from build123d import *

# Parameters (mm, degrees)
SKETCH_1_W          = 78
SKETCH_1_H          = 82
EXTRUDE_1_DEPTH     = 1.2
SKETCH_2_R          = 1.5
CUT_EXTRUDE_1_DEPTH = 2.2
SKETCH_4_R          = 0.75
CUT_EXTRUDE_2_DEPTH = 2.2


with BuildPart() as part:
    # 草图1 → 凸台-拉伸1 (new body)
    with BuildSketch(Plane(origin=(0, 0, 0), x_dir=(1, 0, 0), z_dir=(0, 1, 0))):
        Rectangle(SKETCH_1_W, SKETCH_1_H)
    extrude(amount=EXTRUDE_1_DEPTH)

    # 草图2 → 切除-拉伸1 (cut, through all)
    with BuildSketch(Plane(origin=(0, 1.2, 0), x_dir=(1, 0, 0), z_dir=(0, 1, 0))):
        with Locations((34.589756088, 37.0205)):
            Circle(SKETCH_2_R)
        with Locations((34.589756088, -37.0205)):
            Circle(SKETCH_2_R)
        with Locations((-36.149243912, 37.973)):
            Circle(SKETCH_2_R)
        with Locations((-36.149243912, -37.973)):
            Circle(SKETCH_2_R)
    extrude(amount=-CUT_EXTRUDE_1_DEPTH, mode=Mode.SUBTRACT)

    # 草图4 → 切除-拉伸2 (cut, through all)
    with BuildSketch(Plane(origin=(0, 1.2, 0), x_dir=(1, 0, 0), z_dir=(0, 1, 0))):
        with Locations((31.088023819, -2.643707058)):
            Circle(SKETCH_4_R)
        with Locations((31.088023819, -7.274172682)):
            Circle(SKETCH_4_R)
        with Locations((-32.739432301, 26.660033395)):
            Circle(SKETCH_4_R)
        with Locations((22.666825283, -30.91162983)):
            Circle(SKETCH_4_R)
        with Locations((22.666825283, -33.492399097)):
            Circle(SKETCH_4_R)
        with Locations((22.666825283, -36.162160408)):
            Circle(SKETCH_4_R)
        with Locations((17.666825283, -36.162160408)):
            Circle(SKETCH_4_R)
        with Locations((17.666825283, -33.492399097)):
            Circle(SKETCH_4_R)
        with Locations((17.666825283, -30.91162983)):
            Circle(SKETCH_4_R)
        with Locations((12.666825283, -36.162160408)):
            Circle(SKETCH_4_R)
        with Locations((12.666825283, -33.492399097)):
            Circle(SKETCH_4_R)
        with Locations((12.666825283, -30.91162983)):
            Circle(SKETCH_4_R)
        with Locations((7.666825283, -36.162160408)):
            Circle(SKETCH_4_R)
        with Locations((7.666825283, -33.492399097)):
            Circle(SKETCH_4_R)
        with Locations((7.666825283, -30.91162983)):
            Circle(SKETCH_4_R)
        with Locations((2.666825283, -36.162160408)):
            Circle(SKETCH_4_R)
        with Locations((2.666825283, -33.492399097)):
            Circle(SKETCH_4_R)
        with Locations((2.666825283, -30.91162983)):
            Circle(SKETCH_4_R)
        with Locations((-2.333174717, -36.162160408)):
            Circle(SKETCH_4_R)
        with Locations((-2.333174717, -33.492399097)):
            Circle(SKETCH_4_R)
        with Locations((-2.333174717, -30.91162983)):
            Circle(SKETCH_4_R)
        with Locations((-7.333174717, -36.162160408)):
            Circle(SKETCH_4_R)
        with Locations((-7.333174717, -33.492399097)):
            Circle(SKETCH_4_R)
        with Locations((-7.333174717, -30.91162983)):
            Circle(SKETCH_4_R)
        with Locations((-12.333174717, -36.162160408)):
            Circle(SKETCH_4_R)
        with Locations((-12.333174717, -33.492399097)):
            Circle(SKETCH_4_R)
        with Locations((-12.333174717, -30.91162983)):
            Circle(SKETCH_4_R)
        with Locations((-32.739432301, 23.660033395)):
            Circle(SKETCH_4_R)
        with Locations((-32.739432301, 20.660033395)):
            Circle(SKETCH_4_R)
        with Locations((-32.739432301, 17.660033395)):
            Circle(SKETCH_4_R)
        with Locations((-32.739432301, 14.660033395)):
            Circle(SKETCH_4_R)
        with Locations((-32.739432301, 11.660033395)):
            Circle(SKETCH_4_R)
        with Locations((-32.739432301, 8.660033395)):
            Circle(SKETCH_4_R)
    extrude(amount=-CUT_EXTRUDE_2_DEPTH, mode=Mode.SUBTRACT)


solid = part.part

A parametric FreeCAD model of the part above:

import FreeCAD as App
import Part
import Sketcher

doc = App.newDocument("Part")
params = doc.addObject("Spreadsheet::Sheet", "Params")
for row, (alias, value) in enumerate([
    ("sketch1_width", "78 mm"),
    ("sketch1_height", "82 mm"),
    ("pad1_length", "1.2 mm"),
    ("sketch2_diameter", "3 mm"),
    ("sketch3_diameter", "1.5 mm"),
], start=1):
    params.set(f"A{row}", alias)
    params.set(f"B{row}", "=" + value)
    params.setAlias(f"B{row}", alias)

body = doc.addObject("PartDesign::Body", "Body")

sketch1 = doc.addObject("Sketcher::SketchObject", "Sketch")
body.addObject(sketch1)
sketch1.AttachmentSupport = (doc.XZ_Plane, [""])
sketch1.MapMode = "FlatFace"
sketch1.addGeometry([
    Part.LineSegment(App.Vector(-39, -41, 0), App.Vector(-39, 41, 0)),
    Part.LineSegment(App.Vector(-39, 41, 0), App.Vector(39, 41, 0)),
    Part.LineSegment(App.Vector(39, 41, 0), App.Vector(39, -41, 0)),
    Part.LineSegment(App.Vector(39, -41, 0), App.Vector(-39, -41, 0)),
], False)
sketch1.addConstraint([
    Sketcher.Constraint("Coincident", 0, 2, 1, 1),
    Sketcher.Constraint("Coincident", 1, 2, 2, 1),
    Sketcher.Constraint("Coincident", 2, 2, 3, 1),
    Sketcher.Constraint("Coincident", 3, 2, 0, 1),
    Sketcher.Constraint("Vertical", 0),
    Sketcher.Constraint("Horizontal", 1),
    Sketcher.Constraint("Vertical", 2),
    Sketcher.Constraint("Horizontal", 3),
    Sketcher.Constraint("Symmetric", 0, 2, 2, 2, -1, 1),
    Sketcher.Constraint("DistanceX", 1, 1, 1, 2, 78.0),
    Sketcher.Constraint("DistanceY", 0, 1, 0, 2, 82.0),
])
sketch1.setExpression("Constraints[9]", "Params.sketch1_width")
sketch1.setExpression("Constraints[10]", "Params.sketch1_height")
pad1 = doc.addObject("PartDesign::Pad", "Pad")
body.addObject(pad1)
pad1.Profile = sketch1
pad1.setExpression("Length", "Params.pad1_length")
pad1.Reversed = True

sketch2 = doc.addObject("Sketcher::SketchObject", "Sketch001")
body.addObject(sketch2)
sketch2.AttachmentSupport = (doc.XZ_Plane, [""])
sketch2.MapMode = "FlatFace"
sketch2.AttachmentOffset = App.Placement(App.Vector(0, 0, -1.2), App.Rotation())
sketch2.addGeometry([
    Part.Circle(App.Vector(34.6, -37, 0), App.Vector(0, 0, 1), 1.5),
    Part.Circle(App.Vector(34.6, 37, 0), App.Vector(0, 0, 1), 1.5),
    Part.Circle(App.Vector(-36.1, -38, 0), App.Vector(0, 0, 1), 1.5),
    Part.Circle(App.Vector(-36.1, 38, 0), App.Vector(0, 0, 1), 1.5),
], False)
sketch2.addConstraint([
    Sketcher.Constraint("Equal", 0, 1),
    Sketcher.Constraint("Equal", 1, 2),
    Sketcher.Constraint("Equal", 2, 3),
    Sketcher.Constraint("Symmetric", 0, 3, 1, 3, -1),
    Sketcher.Constraint("Symmetric", 2, 3, 3, 3, -1),
    Sketcher.Constraint("Diameter", 0, 3.0),
    Sketcher.Constraint("DistanceY", 2, 3, -1, 1, 37.973),
    Sketcher.Constraint("DistanceY", 0, 3, 1, 3, 74.041),
    Sketcher.Constraint("DistanceX", 2, 3, 0, 3, 70.739),
    Sketcher.Constraint("DistanceX", -1, 1, 0, 3, 34.589756),
])
sketch2.setExpression("Constraints[5]", "Params.sketch2_diameter")
pocket1 = doc.addObject("PartDesign::Pocket", "Pocket")
body.addObject(pocket1)
pocket1.Profile = sketch2
pocket1.Type = "ThroughAll"
pocket1.Reversed = True

sketch3 = doc.addObject("Sketcher::SketchObject", "Sketch002")
body.addObject(sketch3)
sketch3.AttachmentSupport = (doc.XZ_Plane, [""])
sketch3.MapMode = "FlatFace"
sketch3.AttachmentOffset = App.Placement(App.Vector(0, 0, -1.2), App.Rotation())
sketch3.addGeometry([
    Part.Circle(App.Vector(31.1, 2.6, 0), App.Vector(0, 0, 1), 0.8),
    Part.Circle(App.Vector(31.1, 7.3, 0), App.Vector(0, 0, 1), 0.8),
    Part.Circle(App.Vector(-32.7, -26.7, 0), App.Vector(0, 0, 1), 0.8),
    Part.Circle(App.Vector(22.7, 30.9, 0), App.Vector(0, 0, 1), 0.8),
    Part.Circle(App.Vector(22.7, 33.5, 0), App.Vector(0, 0, 1), 0.8),
    Part.Circle(App.Vector(22.7, 36.2, 0), App.Vector(0, 0, 1), 0.8),
    Part.Circle(App.Vector(17.7, 36.2, 0), App.Vector(0, 0, 1), 0.8),
    Part.Circle(App.Vector(17.7, 33.5, 0), App.Vector(0, 0, 1), 0.8),
    Part.Circle(App.Vector(17.7, 30.9, 0), App.Vector(0, 0, 1), 0.8),
    Part.Circle(App.Vector(12.7, 36.2, 0), App.Vector(0, 0, 1), 0.8),
    Part.Circle(App.Vector(12.7, 33.5, 0), App.Vector(0, 0, 1), 0.8),
    Part.Circle(App.Vector(12.7, 30.9, 0), App.Vector(0, 0, 1), 0.8),
    Part.Circle(App.Vector(7.7, 36.2, 0), App.Vector(0, 0, 1), 0.8),
    Part.Circle(App.Vector(7.7, 33.5, 0), App.Vector(0, 0, 1), 0.8),
    Part.Circle(App.Vector(7.7, 30.9, 0), App.Vector(0, 0, 1), 0.8),
    Part.Circle(App.Vector(2.7, 36.2, 0), App.Vector(0, 0, 1), 0.8),
    Part.Circle(App.Vector(2.7, 33.5, 0), App.Vector(0, 0, 1), 0.8),
    Part.Circle(App.Vector(2.7, 30.9, 0), App.Vector(0, 0, 1), 0.8),
    Part.Circle(App.Vector(-2.3, 36.2, 0), App.Vector(0, 0, 1), 0.8),
    Part.Circle(App.Vector(-2.3, 33.5, 0), App.Vector(0, 0, 1), 0.8),
    Part.Circle(App.Vector(-2.3, 30.9, 0), App.Vector(0, 0, 1), 0.8),
    Part.Circle(App.Vector(-7.3, 36.2, 0), App.Vector(0, 0, 1), 0.8),
    Part.Circle(App.Vector(-7.3, 33.5, 0), App.Vector(0, 0, 1), 0.8),
    Part.Circle(App.Vector(-7.3, 30.9, 0), App.Vector(0, 0, 1), 0.8),
    Part.Circle(App.Vector(-12.3, 36.2, 0), App.Vector(0, 0, 1), 0.8),
    Part.Circle(App.Vector(-12.3, 33.5, 0), App.Vector(0, 0, 1), 0.8),
    Part.Circle(App.Vector(-12.3, 30.9, 0), App.Vector(0, 0, 1), 0.8),
    Part.Circle(App.Vector(-32.7, -23.7, 0), App.Vector(0, 0, 1), 0.8),
    Part.Circle(App.Vector(-32.7, -20.7, 0), App.Vector(0, 0, 1), 0.8),
    Part.Circle(App.Vector(-32.7, -17.7, 0), App.Vector(0, 0, 1), 0.8),
    Part.Circle(App.Vector(-32.7, -14.7, 0), App.Vector(0, 0, 1), 0.8),
    Part.Circle(App.Vector(-32.7, -11.7, 0), App.Vector(0, 0, 1), 0.8),
    Part.Circle(App.Vector(-32.7, -8.7, 0), App.Vector(0, 0, 1), 0.8),
], False)
sketch3.addConstraint([
    Sketcher.Constraint("Equal", 0, 1),
    Sketcher.Constraint("Equal", 1, 2),
    Sketcher.Constraint("Equal", 2, 3),
    Sketcher.Constraint("Equal", 3, 4),
    Sketcher.Constraint("Equal", 4, 5),
    Sketcher.Constraint("Equal", 5, 6),
    Sketcher.Constraint("Equal", 6, 7),
    Sketcher.Constraint("Equal", 7, 8),
    Sketcher.Constraint("Equal", 8, 9),
    Sketcher.Constraint("Equal", 9, 10),
    Sketcher.Constraint("Equal", 10, 11),
    Sketcher.Constraint("Equal", 11, 12),
    Sketcher.Constraint("Equal", 12, 13),
    Sketcher.Constraint("Equal", 13, 14),
    Sketcher.Constraint("Equal", 14, 15),
    Sketcher.Constraint("Equal", 15, 16),
    Sketcher.Constraint("Equal", 16, 17),
    Sketcher.Constraint("Equal", 17, 18),
    Sketcher.Constraint("Equal", 18, 19),
    Sketcher.Constraint("Equal", 19, 20),
    Sketcher.Constraint("Equal", 20, 21),
    Sketcher.Constraint("Equal", 21, 22),
    Sketcher.Constraint("Equal", 22, 23),
    Sketcher.Constraint("Equal", 23, 24),
    Sketcher.Constraint("Equal", 24, 25),
    Sketcher.Constraint("Equal", 25, 26),
    Sketcher.Constraint("Equal", 26, 27),
    Sketcher.Constraint("Equal", 27, 28),
    Sketcher.Constraint("Equal", 28, 29),
    Sketcher.Constraint("Equal", 29, 30),
    Sketcher.Constraint("Equal", 30, 31),
    Sketcher.Constraint("Equal", 31, 32),
    Sketcher.Constraint("Horizontal", 5, 3, 6, 3),
    Sketcher.Constraint("Horizontal", 4, 3, 7, 3),
    Sketcher.Constraint("Horizontal", 3, 3, 8, 3),
    Sketcher.Constraint("Horizontal", 6, 3, 9, 3),
    Sketcher.Constraint("Horizontal", 7, 3, 10, 3),
    Sketcher.Constraint("Horizontal", 8, 3, 11, 3),
    Sketcher.Constraint("Horizontal", 9, 3, 12, 3),
    Sketcher.Constraint("Horizontal", 10, 3, 13, 3),
    Sketcher.Constraint("Horizontal", 11, 3, 14, 3),
    Sketcher.Constraint("Horizontal", 12, 3, 15, 3),
    Sketcher.Constraint("Horizontal", 13, 3, 16, 3),
    Sketcher.Constraint("Horizontal", 14, 3, 17, 3),
    Sketcher.Constraint("Horizontal", 15, 3, 18, 3),
    Sketcher.Constraint("Horizontal", 16, 3, 19, 3),
    Sketcher.Constraint("Horizontal", 17, 3, 20, 3),
    Sketcher.Constraint("Horizontal", 18, 3, 21, 3),
    Sketcher.Constraint("Horizontal", 19, 3, 22, 3),
    Sketcher.Constraint("Horizontal", 20, 3, 23, 3),
    Sketcher.Constraint("Horizontal", 21, 3, 24, 3),
    Sketcher.Constraint("Horizontal", 22, 3, 25, 3),
    Sketcher.Constraint("Horizontal", 23, 3, 26, 3),
    Sketcher.Constraint("Vertical", 0, 3, 1, 3),
    Sketcher.Constraint("Vertical", 3, 3, 4, 3),
    Sketcher.Constraint("Vertical", 4, 3, 5, 3),
    Sketcher.Constraint("Vertical", 6, 3, 7, 3),
    Sketcher.Constraint("Vertical", 7, 3, 8, 3),
    Sketcher.Constraint("Vertical", 9, 3, 10, 3),
    Sketcher.Constraint("Vertical", 10, 3, 11, 3),
    Sketcher.Constraint("Vertical", 12, 3, 13, 3),
    Sketcher.Constraint("Vertical", 13, 3, 14, 3),
    Sketcher.Constraint("Vertical", 15, 3, 16, 3),
    Sketcher.Constraint("Vertical", 16, 3, 17, 3),
    Sketcher.Constraint("Vertical", 18, 3, 19, 3),
    Sketcher.Constraint("Vertical", 19, 3, 20, 3),
    Sketcher.Constraint("Vertical", 21, 3, 22, 3),
    Sketcher.Constraint("Vertical", 22, 3, 23, 3),
    Sketcher.Constraint("Vertical", 24, 3, 25, 3),
    Sketcher.Constraint("Vertical", 25, 3, 26, 3),
    Sketcher.Constraint("Vertical", 2, 3, 27, 3),
    Sketcher.Constraint("Vertical", 27, 3, 28, 3),
    Sketcher.Constraint("Vertical", 28, 3, 29, 3),
    Sketcher.Constraint("Vertical", 29, 3, 30, 3),
    Sketcher.Constraint("Vertical", 30, 3, 31, 3),
    Sketcher.Constraint("Vertical", 31, 3, 32, 3),
    Sketcher.Constraint("Diameter", 0, 1.5),
    Sketcher.Constraint("DistanceX", 6, 3, 5, 3, 5.0),
    Sketcher.Constraint("DistanceX", 9, 3, 6, 3, 5.0),
    Sketcher.Constraint("DistanceX", 12, 3, 9, 3, 5.0),
    Sketcher.Constraint("DistanceX", 15, 3, 12, 3, 5.0),
    Sketcher.Constraint("DistanceX", 18, 3, 15, 3, 5.0),
    Sketcher.Constraint("DistanceX", 21, 3, 18, 3, 5.0),
    Sketcher.Constraint("DistanceX", 24, 3, 21, 3, 5.0),
    Sketcher.Constraint("DistanceY", 2, 3, 27, 3, 3.0),
    Sketcher.Constraint("DistanceY", 27, 3, 28, 3, 3.0),
    Sketcher.Constraint("DistanceY", 28, 3, 29, 3, 3.0),
    Sketcher.Constraint("DistanceY", 29, 3, 30, 3, 3.0),
    Sketcher.Constraint("DistanceY", 30, 3, 31, 3, 3.0),
    Sketcher.Constraint("DistanceY", 31, 3, 32, 3, 3.0),
    Sketcher.Constraint("DistanceY", -1, 1, 4, 3, 33.492399),
    Sketcher.Constraint("DistanceX", 3, 3, 1, 3, 8.421199),
    Sketcher.Constraint("DistanceY", -1, 1, 3, 3, 30.91163),
    Sketcher.Constraint("DistanceY", -1, 1, 5, 3, 36.16216),
    Sketcher.Constraint("DistanceY", 2, 3, 0, 3, 29.30374),
    Sketcher.Constraint("DistanceX", -1, 1, 0, 3, 31.088024),
    Sketcher.Constraint("DistanceY", -1, 1, 0, 3, 2.643707),
    Sketcher.Constraint("DistanceY", -1, 1, 1, 3, 7.274173),
    Sketcher.Constraint("DistanceX", 2, 3, -1, 1, 32.739432),
])
sketch3.setExpression("Constraints[76]", "Params.sketch3_diameter")
pocket2 = doc.addObject("PartDesign::Pocket", "Pocket001")
body.addObject(pocket2)
pocket2.Profile = sketch3
pocket2.Type = "ThroughAll"
pocket2.Reversed = True

doc.recompute()
